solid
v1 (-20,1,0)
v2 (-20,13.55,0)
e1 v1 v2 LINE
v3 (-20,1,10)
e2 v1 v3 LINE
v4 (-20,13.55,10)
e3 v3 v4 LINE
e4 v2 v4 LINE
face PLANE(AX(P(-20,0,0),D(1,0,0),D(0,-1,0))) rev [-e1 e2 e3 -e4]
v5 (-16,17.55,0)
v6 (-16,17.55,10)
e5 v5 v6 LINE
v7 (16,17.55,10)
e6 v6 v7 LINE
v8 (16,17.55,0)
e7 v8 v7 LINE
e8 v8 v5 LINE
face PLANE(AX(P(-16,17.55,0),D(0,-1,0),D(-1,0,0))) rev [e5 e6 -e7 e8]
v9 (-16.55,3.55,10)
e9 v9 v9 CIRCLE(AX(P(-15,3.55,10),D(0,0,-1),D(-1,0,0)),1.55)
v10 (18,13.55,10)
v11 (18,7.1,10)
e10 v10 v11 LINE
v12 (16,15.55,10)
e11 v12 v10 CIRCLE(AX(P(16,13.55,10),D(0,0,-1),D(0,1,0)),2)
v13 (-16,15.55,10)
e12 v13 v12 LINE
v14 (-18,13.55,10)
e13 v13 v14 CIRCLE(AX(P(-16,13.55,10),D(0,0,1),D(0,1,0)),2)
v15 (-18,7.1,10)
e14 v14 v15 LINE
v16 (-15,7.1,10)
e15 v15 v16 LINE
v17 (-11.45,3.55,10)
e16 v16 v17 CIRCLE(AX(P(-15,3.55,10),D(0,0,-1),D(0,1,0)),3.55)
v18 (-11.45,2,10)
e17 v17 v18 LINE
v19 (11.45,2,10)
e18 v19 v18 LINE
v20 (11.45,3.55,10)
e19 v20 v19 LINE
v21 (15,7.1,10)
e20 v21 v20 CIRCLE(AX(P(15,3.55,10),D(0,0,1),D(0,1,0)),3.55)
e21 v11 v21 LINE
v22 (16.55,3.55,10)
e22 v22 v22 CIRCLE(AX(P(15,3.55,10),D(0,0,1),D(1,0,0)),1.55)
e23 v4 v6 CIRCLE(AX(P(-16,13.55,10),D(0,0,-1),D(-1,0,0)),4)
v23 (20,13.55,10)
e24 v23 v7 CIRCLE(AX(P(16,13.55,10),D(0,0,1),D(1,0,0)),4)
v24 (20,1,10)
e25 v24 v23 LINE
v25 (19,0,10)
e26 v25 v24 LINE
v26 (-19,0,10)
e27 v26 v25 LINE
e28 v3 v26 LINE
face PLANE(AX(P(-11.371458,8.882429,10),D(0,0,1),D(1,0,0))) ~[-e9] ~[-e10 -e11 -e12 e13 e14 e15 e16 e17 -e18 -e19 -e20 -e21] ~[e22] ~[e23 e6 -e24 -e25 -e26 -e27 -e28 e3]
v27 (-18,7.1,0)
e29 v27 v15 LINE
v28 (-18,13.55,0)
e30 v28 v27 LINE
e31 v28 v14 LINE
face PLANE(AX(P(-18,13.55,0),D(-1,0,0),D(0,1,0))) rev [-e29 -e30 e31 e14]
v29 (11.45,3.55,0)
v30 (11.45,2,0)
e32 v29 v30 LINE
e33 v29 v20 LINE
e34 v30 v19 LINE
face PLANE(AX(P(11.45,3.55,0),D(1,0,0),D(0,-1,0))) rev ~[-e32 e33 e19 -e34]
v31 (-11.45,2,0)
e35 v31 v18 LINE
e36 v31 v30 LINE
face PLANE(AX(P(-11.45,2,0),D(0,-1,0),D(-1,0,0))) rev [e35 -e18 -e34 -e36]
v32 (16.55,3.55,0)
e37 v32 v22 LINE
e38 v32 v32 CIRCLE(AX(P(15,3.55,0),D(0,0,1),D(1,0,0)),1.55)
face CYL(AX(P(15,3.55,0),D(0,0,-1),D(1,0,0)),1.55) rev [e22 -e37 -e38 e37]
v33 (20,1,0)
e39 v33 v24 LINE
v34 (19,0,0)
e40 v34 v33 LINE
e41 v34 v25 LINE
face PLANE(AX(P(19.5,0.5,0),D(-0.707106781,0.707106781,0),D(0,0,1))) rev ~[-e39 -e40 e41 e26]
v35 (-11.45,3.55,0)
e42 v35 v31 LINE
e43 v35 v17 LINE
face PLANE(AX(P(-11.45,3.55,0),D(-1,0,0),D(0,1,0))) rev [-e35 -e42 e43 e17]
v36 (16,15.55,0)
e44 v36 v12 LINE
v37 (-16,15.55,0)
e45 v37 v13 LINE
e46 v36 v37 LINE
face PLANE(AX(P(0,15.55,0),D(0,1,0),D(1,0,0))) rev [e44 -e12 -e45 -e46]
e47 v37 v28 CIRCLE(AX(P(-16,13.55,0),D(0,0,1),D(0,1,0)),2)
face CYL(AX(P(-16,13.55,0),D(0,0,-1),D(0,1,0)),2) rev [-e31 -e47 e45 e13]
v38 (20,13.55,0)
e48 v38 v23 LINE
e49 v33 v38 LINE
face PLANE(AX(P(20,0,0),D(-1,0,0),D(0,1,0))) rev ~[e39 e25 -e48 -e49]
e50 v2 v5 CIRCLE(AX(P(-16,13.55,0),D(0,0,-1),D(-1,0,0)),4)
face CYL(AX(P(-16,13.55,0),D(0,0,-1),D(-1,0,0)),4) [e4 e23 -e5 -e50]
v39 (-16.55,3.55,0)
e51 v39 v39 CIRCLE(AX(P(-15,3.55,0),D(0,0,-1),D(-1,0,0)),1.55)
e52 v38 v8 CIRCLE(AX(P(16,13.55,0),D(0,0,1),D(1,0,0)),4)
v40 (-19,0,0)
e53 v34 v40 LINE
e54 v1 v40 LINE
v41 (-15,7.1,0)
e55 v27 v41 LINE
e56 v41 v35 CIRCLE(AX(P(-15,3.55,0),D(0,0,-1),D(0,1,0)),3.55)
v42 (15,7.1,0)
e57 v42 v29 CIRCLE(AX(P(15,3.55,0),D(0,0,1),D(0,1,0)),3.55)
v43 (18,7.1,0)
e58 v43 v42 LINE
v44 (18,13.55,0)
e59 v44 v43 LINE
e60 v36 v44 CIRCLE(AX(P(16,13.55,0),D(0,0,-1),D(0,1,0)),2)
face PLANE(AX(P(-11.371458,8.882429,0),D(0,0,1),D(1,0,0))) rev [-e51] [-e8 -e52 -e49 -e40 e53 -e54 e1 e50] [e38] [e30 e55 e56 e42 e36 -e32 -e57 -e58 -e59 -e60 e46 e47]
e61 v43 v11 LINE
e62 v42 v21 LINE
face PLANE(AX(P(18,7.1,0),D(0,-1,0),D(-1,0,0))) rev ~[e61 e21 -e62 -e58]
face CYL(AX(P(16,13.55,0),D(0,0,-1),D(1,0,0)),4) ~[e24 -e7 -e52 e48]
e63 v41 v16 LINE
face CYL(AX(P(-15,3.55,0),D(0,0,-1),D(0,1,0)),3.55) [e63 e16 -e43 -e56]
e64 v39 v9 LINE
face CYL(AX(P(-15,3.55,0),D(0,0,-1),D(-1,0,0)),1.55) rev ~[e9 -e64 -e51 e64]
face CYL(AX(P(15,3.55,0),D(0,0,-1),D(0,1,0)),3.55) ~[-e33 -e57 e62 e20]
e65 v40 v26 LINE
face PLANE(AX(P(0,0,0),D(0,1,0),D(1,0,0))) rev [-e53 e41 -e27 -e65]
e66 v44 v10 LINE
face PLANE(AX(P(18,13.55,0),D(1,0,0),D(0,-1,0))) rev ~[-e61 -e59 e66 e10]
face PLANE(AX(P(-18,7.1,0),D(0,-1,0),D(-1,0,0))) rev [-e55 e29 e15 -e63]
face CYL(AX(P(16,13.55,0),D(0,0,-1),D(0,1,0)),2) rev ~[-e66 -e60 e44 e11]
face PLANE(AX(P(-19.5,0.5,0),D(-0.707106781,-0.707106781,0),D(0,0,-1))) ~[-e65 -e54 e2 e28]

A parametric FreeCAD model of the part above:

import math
import FreeCAD as App
import Part
import Sketcher

V = App.Vector


def edges_at(feature, points):
    """Names of the edges that pass closest to the given points."""
    edges = feature.Shape.Edges
    near = lambda p: min(range(len(edges)), key=lambda i: edges[i].distToShape(Part.Vertex(*p))[0])
    return sorted({f"Edge{near(p) + 1}" for p in points})

doc = App.newDocument("Part")
body = doc.addObject("PartDesign::Body", "Body")

sketch1 = body.newObject("Sketcher::SketchObject", "Sketch")
sketch1.AttachmentSupport = (doc.getObject("XY_Plane"), [""])
sketch1.MapMode = "FlatFace"
sketch1.addGeometry([
    Part.LineSegment(V(16, 17.6, 0), V(0, 17.6, 0)),
    Part.LineSegment(V(0, 17.6, 0), V(0, 15.6, 0)),
    Part.LineSegment(V(0, 15.6, 0), V(16, 15.6, 0)),
    Part.ArcOfCircle(Part.Circle(V(16, 13.6, 0), V(0, 0, 1), 2), math.radians(0), math.radians(90)),
    Part.LineSegment(V(18, 13.6, 0), V(18, 7.1, 0)),
    Part.LineSegment(V(18, 7.1, 0), V(15, 7.1, 0)),
    Part.ArcOfCircle(Part.Circle(V(15, 3.5, 0), V(0, 0, 1), 3.5), math.radians(90), math.radians(180)),
    Part.LineSegment(V(11.4, 3.5, 0), V(11.4, 2, 0)),
    Part.LineSegment(V(11.4, 2, 0), V(0, 2, 0)),
    Part.LineSegment(V(0, 2, 0), V(0, 0, 0)),
    Part.LineSegment(V(0, 0, 0), V(20, 0, 0)),
    Part.LineSegment(V(20, 0, 0), V(20, 13.6, 0)),
    Part.ArcOfCircle(Part.Circle(V(16, 13.6, 0), V(0, 0, 1), 4), math.radians(0), math.radians(90)),
    Part.Circle(V(15, 3.5, 0), V(0, 0, 1), 1.6),
], False)
sketch1.addConstraint([
    Sketcher.Constraint("Coincident", 0, 2, 1, 1),
    Sketcher.Constraint("Coincident", 1, 2, 2, 1),
    Sketcher.Constraint("Tangent", 2, 2, 3, 2),
    Sketcher.Constraint("Tangent", 3, 1, 4, 1),
    Sketcher.Constraint("Coincident", 4, 2, 5, 1),
    Sketcher.Constraint("Tangent", 5, 2, 6, 1),
    Sketcher.Constraint("Tangent", 6, 2, 7, 1),
    Sketcher.Constraint("Coincident", 7, 2, 8, 1),
    Sketcher.Constraint("Coincident", 8, 2, 9, 1),
    Sketcher.Constraint("Coincident", 9, 2, 10, 1),
    Sketcher.Constraint("Coincident", 10, 2, 11, 1),
    Sketcher.Constraint("Tangent", 11, 2, 12, 1),
    Sketcher.Constraint("Tangent", 12, 2, 0, 1),
    Sketcher.Constraint("Horizontal", 0),
    Sketcher.Constraint("Vertical", 1),
    Sketcher.Constraint("Horizontal", 2),
    Sketcher.Constraint("Vertical", 4),
    Sketcher.Constraint("Horizontal", 5),
    Sketcher.Constraint("Vertical", 7),
    Sketcher.Constraint("Horizontal", 8),
    Sketcher.Constraint("Vertical", 9),
    Sketcher.Constraint("Horizontal", 10),
    Sketcher.Constraint("Vertical", 11),
    Sketcher.Constraint("Coincident", 9, 2, -1, 1),
    Sketcher.Constraint("Coincident", 12, 3, 3, 3),
    Sketcher.Constraint("Coincident", 13, 3, 6, 3),
    Sketcher.Constraint("PointOnObject", 0, 2, -2),
    Sketcher.Constraint("Equal", 1, 9),
    Sketcher.Constraint("Radius", 3, 2.0),
    Sketcher.Constraint("Radius", 12, 4.0),
    Sketcher.Constraint("Diameter", 13, 3.1),
    Sketcher.Constraint("DistanceX", 0, 2, 0, 1, 16.0),
    Sketcher.Constraint("DistanceX", 5, 2, 5, 1, 3.0),
    Sketcher.Constraint("Radius", 6, 3.55),
    Sketcher.Constraint("DistanceY", 6, 3, 3, 3, 10.0),
    Sketcher.Constraint("DistanceY", 7, 2, 7, 1, 1.55),
])
pad1 = body.newObject("PartDesign::Pad", "Pad")
pad1.Profile = sketch1
pad1.Length = 10
body2 = doc.addObject("PartDesign::Body", "Body001")
doc.recompute()

body2.BaseFeature = body
doc.recompute()

mirroring = doc.addObject("Part::Mirroring", "Mirroring")
mirroring.Source = body
mirroring.Base = V(0, 16.55, 5)
mirroring.Normal = V(-1, 0, 0)
body3 = doc.addObject("PartDesign::Body", "Body002")
body3.BaseFeature = mirroring
boolean = body2.newObject("PartDesign::Boolean", "Boolean")
boolean.Type = "Fuse"
boolean.addObjects([body3])
doc.recompute()

chamfer = body2.newObject("PartDesign::Chamfer", "Chamfer")
chamfer.Base = (boolean, edges_at(boolean, [(-20, 0, 5), (20, 0, 5)]))
chamfer.Size = 1
mirroring.Visibility = False

doc.recompute()
